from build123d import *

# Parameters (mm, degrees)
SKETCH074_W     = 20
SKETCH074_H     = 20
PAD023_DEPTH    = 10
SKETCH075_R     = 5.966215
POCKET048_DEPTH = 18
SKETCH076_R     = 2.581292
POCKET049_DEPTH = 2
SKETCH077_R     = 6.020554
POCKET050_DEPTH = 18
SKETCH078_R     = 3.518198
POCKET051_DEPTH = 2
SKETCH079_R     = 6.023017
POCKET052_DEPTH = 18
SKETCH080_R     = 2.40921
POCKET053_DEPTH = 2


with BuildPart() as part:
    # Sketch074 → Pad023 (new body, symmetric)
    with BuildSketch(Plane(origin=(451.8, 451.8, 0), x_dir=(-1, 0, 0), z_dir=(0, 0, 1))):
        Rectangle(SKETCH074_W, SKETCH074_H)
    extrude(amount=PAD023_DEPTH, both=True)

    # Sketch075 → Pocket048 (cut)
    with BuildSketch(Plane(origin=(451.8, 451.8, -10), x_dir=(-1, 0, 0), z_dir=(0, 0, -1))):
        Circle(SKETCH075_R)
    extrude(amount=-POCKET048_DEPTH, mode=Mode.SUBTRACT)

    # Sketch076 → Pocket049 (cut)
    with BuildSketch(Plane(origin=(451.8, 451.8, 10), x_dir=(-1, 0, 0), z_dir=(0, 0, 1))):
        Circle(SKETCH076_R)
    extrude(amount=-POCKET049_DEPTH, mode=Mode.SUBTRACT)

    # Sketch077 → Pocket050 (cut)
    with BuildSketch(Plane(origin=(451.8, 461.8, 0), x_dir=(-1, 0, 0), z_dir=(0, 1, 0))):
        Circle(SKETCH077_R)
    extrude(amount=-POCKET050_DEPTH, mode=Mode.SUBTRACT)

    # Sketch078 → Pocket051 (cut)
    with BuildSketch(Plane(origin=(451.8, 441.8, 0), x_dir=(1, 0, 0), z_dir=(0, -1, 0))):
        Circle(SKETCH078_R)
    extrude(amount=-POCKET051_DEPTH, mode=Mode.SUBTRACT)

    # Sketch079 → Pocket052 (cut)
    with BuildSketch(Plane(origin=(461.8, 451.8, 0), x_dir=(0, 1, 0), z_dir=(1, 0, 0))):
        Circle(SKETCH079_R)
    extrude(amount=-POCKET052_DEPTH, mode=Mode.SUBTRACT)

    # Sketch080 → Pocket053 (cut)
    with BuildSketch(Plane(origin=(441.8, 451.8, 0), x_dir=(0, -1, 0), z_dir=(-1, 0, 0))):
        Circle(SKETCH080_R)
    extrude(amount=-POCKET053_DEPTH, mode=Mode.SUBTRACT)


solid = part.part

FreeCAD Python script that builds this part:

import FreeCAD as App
import Part
import Sketcher
Q = App.Units.Quantity

doc = App.newDocument("Part")
body = doc.addObject("PartDesign::Body", "Body")

# Sketch on XY plane
sketch1 = body.newObject("Sketcher::SketchObject", "Sketch")
sketch1.AttachmentSupport = (doc.getObject("XY_Plane"), [""])
sketch1.MapMode = "FlatFace"
sketch1.addGeometry([
    Part.LineSegment(App.Vector(462, 442, 0), App.Vector(462, 462, 0)),
    Part.LineSegment(App.Vector(462, 462, 0), App.Vector(442, 462, 0)),
    Part.LineSegment(App.Vector(442, 462, 0), App.Vector(442, 442, 0)),
    Part.LineSegment(App.Vector(442, 442, 0), App.Vector(462, 442, 0)),
], False)
sketch1.addConstraint([
    Sketcher.Constraint("Coincident", 0, 2, 1, 1),
    Sketcher.Constraint("Coincident", 1, 2, 2, 1),
    Sketcher.Constraint("Coincident", 2, 2, 3, 1),
    Sketcher.Constraint("Coincident", 3, 2, 0, 1),
    Sketcher.Constraint("Vertical", 0),
    Sketcher.Constraint("Horizontal", 1),
    Sketcher.Constraint("Vertical", 2),
    Sketcher.Constraint("Horizontal", 3),
    Sketcher.Constraint("Equal", 3, 0),
    Sketcher.Constraint("DistanceX", 1, 2, 1, 1, Q("20 mm")),
    Sketcher.Constraint("DistanceX", -1, 1, 0, 2, Q("461.8 mm")),
    Sketcher.Constraint("DistanceY", -1, 1, 0, 2, Q("461.8 mm")),
])
pad1 = body.newObject("PartDesign::Pad", "Pad")
pad1.Profile = sketch1
pad1.Length = 20
pad1.Midplane = True

# Sketch on XY plane
sketch2 = body.newObject("Sketcher::SketchObject", "Sketch001")
sketch2.AttachmentSupport = (doc.getObject("XY_Plane"), [""])
sketch2.MapMode = "FlatFace"
sketch2.AttachmentOffset = App.Placement(App.Vector(0, 0, -10), App.Rotation())
sketch2.addGeometry(Part.Circle(App.Vector(452, 452, 0), App.Vector(0, 0, 1), 6), False)
sketch2.addConstraint([
    Sketcher.Constraint("DistanceX", -1, 1, 0, 3, Q("451.8 mm")),
    Sketcher.Constraint("DistanceY", -1, 1, 0, 3, Q("451.8 mm")),
    Sketcher.Constraint("Diameter", 0, Q("11.93243 mm")),
])
pocket1 = body.newObject("PartDesign::Pocket", "Pocket")
pocket1.Profile = sketch2
pocket1.Length = 18
pocket1.Reversed = True

# Sketch on XY plane
sketch3 = body.newObject("Sketcher::SketchObject", "Sketch002")
sketch3.AttachmentSupport = (doc.getObject("XY_Plane"), [""])
sketch3.MapMode = "FlatFace"
sketch3.AttachmentOffset = App.Placement(App.Vector(0, 0, 10), App.Rotation())
sketch3.addGeometry(Part.Circle(App.Vector(451.8, 451.8, 0), App.Vector(0, 0, 1), 2.6), False)
sketch3.addConstraint([
    Sketcher.Constraint("DistanceX", -1, 1, 0, 3, Q("451.8 mm")),
    Sketcher.Constraint("DistanceY", -1, 1, 0, 3, Q("451.8 mm")),
    Sketcher.Constraint("Diameter", 0, Q("5.162584 mm")),
])
pocket2 = body.newObject("PartDesign::Pocket", "Pocket001")
pocket2.Profile = sketch3
pocket2.Length = 2

# Sketch on XZ plane
sketch4 = body.newObject("Sketcher::SketchObject", "Sketch003")
sketch4.AttachmentSupport = (doc.getObject("XZ_Plane"), [""])
sketch4.MapMode = "FlatFace"
sketch4.AttachmentOffset = App.Placement(App.Vector(0, 0, -461.8), App.Rotation())
sketch4.addGeometry(Part.Circle(App.Vector(452, 0, 0), App.Vector(0, 0, 1), 6), False)
sketch4.addConstraint([
    Sketcher.Constraint("PointOnObject", 0, 3, -1),
    Sketcher.Constraint("DistanceX", -1, 1, 0, 3, Q("451.8 mm")),
    Sketcher.Constraint("Diameter", 0, Q("12.041108 mm")),
])
pocket3 = body.newObject("PartDesign::Pocket", "Pocket002")
pocket3.Profile = sketch4
pocket3.Length = 18
pocket3.Reversed = True

# Sketch on XZ plane
sketch5 = body.newObject("Sketcher::SketchObject", "Sketch004")
sketch5.AttachmentSupport = (doc.getObject("XZ_Plane"), [""])
sketch5.MapMode = "FlatFace"
sketch5.AttachmentOffset = App.Placement(App.Vector(0, 0, -441.8), App.Rotation())
sketch5.addGeometry(Part.Circle(App.Vector(451.8, 0, 0), App.Vector(0, 0, 1), 3.5), False)
sketch5.addConstraint([
    Sketcher.Constraint("PointOnObject", 0, 3, -1),
    Sketcher.Constraint("DistanceX", -1, 1, 0, 3, Q("451.8 mm")),
    Sketcher.Constraint("Diameter", 0, Q("7.036396 mm")),
])
pocket4 = body.newObject("PartDesign::Pocket", "Pocket003")
pocket4.Profile = sketch5
pocket4.Length = 2

# Sketch on YZ plane
sketch6 = body.newObject("Sketcher::SketchObject", "Sketch005")
sketch6.AttachmentSupport = (doc.getObject("YZ_Plane"), [""])
sketch6.MapMode = "FlatFace"
sketch6.AttachmentOffset = App.Placement(App.Vector(0, 0, 461.8), App.Rotation())
sketch6.addGeometry(Part.Circle(App.Vector(452, 0, 0), App.Vector(0, 0, 1), 6), False)
sketch6.addConstraint([
    Sketcher.Constraint("PointOnObject", 0, 3, -1),
    Sketcher.Constraint("DistanceX", -1, 1, 0, 3, Q("451.8 mm")),
    Sketcher.Constraint("Diameter", 0, Q("12.046034 mm")),
])
pocket5 = body.newObject("PartDesign::Pocket", "Pocket004")
pocket5.Profile = sketch6
pocket5.Length = 18

# Sketch on YZ plane
sketch7 = body.newObject("Sketcher::SketchObject", "Sketch006")
sketch7.AttachmentSupport = (doc.getObject("YZ_Plane"), [""])
sketch7.MapMode = "FlatFace"
sketch7.AttachmentOffset = App.Placement(App.Vector(0, 0, 441.8), App.Rotation())
sketch7.addGeometry(Part.Circle(App.Vector(451.8, 0, 0), App.Vector(0, 0, 1), 2.4), False)
sketch7.addConstraint([
    Sketcher.Constraint("PointOnObject", 0, 3, -1),
    Sketcher.Constraint("DistanceX", -1, 1, 0, 3, Q("451.8 mm")),
    Sketcher.Constraint("Diameter", 0, Q("4.81842 mm")),
])
pocket6 = body.newObject("PartDesign::Pocket", "Pocket005")
pocket6.Profile = sketch7
pocket6.Length = 2
pocket6.Reversed = True

doc.recompute()
